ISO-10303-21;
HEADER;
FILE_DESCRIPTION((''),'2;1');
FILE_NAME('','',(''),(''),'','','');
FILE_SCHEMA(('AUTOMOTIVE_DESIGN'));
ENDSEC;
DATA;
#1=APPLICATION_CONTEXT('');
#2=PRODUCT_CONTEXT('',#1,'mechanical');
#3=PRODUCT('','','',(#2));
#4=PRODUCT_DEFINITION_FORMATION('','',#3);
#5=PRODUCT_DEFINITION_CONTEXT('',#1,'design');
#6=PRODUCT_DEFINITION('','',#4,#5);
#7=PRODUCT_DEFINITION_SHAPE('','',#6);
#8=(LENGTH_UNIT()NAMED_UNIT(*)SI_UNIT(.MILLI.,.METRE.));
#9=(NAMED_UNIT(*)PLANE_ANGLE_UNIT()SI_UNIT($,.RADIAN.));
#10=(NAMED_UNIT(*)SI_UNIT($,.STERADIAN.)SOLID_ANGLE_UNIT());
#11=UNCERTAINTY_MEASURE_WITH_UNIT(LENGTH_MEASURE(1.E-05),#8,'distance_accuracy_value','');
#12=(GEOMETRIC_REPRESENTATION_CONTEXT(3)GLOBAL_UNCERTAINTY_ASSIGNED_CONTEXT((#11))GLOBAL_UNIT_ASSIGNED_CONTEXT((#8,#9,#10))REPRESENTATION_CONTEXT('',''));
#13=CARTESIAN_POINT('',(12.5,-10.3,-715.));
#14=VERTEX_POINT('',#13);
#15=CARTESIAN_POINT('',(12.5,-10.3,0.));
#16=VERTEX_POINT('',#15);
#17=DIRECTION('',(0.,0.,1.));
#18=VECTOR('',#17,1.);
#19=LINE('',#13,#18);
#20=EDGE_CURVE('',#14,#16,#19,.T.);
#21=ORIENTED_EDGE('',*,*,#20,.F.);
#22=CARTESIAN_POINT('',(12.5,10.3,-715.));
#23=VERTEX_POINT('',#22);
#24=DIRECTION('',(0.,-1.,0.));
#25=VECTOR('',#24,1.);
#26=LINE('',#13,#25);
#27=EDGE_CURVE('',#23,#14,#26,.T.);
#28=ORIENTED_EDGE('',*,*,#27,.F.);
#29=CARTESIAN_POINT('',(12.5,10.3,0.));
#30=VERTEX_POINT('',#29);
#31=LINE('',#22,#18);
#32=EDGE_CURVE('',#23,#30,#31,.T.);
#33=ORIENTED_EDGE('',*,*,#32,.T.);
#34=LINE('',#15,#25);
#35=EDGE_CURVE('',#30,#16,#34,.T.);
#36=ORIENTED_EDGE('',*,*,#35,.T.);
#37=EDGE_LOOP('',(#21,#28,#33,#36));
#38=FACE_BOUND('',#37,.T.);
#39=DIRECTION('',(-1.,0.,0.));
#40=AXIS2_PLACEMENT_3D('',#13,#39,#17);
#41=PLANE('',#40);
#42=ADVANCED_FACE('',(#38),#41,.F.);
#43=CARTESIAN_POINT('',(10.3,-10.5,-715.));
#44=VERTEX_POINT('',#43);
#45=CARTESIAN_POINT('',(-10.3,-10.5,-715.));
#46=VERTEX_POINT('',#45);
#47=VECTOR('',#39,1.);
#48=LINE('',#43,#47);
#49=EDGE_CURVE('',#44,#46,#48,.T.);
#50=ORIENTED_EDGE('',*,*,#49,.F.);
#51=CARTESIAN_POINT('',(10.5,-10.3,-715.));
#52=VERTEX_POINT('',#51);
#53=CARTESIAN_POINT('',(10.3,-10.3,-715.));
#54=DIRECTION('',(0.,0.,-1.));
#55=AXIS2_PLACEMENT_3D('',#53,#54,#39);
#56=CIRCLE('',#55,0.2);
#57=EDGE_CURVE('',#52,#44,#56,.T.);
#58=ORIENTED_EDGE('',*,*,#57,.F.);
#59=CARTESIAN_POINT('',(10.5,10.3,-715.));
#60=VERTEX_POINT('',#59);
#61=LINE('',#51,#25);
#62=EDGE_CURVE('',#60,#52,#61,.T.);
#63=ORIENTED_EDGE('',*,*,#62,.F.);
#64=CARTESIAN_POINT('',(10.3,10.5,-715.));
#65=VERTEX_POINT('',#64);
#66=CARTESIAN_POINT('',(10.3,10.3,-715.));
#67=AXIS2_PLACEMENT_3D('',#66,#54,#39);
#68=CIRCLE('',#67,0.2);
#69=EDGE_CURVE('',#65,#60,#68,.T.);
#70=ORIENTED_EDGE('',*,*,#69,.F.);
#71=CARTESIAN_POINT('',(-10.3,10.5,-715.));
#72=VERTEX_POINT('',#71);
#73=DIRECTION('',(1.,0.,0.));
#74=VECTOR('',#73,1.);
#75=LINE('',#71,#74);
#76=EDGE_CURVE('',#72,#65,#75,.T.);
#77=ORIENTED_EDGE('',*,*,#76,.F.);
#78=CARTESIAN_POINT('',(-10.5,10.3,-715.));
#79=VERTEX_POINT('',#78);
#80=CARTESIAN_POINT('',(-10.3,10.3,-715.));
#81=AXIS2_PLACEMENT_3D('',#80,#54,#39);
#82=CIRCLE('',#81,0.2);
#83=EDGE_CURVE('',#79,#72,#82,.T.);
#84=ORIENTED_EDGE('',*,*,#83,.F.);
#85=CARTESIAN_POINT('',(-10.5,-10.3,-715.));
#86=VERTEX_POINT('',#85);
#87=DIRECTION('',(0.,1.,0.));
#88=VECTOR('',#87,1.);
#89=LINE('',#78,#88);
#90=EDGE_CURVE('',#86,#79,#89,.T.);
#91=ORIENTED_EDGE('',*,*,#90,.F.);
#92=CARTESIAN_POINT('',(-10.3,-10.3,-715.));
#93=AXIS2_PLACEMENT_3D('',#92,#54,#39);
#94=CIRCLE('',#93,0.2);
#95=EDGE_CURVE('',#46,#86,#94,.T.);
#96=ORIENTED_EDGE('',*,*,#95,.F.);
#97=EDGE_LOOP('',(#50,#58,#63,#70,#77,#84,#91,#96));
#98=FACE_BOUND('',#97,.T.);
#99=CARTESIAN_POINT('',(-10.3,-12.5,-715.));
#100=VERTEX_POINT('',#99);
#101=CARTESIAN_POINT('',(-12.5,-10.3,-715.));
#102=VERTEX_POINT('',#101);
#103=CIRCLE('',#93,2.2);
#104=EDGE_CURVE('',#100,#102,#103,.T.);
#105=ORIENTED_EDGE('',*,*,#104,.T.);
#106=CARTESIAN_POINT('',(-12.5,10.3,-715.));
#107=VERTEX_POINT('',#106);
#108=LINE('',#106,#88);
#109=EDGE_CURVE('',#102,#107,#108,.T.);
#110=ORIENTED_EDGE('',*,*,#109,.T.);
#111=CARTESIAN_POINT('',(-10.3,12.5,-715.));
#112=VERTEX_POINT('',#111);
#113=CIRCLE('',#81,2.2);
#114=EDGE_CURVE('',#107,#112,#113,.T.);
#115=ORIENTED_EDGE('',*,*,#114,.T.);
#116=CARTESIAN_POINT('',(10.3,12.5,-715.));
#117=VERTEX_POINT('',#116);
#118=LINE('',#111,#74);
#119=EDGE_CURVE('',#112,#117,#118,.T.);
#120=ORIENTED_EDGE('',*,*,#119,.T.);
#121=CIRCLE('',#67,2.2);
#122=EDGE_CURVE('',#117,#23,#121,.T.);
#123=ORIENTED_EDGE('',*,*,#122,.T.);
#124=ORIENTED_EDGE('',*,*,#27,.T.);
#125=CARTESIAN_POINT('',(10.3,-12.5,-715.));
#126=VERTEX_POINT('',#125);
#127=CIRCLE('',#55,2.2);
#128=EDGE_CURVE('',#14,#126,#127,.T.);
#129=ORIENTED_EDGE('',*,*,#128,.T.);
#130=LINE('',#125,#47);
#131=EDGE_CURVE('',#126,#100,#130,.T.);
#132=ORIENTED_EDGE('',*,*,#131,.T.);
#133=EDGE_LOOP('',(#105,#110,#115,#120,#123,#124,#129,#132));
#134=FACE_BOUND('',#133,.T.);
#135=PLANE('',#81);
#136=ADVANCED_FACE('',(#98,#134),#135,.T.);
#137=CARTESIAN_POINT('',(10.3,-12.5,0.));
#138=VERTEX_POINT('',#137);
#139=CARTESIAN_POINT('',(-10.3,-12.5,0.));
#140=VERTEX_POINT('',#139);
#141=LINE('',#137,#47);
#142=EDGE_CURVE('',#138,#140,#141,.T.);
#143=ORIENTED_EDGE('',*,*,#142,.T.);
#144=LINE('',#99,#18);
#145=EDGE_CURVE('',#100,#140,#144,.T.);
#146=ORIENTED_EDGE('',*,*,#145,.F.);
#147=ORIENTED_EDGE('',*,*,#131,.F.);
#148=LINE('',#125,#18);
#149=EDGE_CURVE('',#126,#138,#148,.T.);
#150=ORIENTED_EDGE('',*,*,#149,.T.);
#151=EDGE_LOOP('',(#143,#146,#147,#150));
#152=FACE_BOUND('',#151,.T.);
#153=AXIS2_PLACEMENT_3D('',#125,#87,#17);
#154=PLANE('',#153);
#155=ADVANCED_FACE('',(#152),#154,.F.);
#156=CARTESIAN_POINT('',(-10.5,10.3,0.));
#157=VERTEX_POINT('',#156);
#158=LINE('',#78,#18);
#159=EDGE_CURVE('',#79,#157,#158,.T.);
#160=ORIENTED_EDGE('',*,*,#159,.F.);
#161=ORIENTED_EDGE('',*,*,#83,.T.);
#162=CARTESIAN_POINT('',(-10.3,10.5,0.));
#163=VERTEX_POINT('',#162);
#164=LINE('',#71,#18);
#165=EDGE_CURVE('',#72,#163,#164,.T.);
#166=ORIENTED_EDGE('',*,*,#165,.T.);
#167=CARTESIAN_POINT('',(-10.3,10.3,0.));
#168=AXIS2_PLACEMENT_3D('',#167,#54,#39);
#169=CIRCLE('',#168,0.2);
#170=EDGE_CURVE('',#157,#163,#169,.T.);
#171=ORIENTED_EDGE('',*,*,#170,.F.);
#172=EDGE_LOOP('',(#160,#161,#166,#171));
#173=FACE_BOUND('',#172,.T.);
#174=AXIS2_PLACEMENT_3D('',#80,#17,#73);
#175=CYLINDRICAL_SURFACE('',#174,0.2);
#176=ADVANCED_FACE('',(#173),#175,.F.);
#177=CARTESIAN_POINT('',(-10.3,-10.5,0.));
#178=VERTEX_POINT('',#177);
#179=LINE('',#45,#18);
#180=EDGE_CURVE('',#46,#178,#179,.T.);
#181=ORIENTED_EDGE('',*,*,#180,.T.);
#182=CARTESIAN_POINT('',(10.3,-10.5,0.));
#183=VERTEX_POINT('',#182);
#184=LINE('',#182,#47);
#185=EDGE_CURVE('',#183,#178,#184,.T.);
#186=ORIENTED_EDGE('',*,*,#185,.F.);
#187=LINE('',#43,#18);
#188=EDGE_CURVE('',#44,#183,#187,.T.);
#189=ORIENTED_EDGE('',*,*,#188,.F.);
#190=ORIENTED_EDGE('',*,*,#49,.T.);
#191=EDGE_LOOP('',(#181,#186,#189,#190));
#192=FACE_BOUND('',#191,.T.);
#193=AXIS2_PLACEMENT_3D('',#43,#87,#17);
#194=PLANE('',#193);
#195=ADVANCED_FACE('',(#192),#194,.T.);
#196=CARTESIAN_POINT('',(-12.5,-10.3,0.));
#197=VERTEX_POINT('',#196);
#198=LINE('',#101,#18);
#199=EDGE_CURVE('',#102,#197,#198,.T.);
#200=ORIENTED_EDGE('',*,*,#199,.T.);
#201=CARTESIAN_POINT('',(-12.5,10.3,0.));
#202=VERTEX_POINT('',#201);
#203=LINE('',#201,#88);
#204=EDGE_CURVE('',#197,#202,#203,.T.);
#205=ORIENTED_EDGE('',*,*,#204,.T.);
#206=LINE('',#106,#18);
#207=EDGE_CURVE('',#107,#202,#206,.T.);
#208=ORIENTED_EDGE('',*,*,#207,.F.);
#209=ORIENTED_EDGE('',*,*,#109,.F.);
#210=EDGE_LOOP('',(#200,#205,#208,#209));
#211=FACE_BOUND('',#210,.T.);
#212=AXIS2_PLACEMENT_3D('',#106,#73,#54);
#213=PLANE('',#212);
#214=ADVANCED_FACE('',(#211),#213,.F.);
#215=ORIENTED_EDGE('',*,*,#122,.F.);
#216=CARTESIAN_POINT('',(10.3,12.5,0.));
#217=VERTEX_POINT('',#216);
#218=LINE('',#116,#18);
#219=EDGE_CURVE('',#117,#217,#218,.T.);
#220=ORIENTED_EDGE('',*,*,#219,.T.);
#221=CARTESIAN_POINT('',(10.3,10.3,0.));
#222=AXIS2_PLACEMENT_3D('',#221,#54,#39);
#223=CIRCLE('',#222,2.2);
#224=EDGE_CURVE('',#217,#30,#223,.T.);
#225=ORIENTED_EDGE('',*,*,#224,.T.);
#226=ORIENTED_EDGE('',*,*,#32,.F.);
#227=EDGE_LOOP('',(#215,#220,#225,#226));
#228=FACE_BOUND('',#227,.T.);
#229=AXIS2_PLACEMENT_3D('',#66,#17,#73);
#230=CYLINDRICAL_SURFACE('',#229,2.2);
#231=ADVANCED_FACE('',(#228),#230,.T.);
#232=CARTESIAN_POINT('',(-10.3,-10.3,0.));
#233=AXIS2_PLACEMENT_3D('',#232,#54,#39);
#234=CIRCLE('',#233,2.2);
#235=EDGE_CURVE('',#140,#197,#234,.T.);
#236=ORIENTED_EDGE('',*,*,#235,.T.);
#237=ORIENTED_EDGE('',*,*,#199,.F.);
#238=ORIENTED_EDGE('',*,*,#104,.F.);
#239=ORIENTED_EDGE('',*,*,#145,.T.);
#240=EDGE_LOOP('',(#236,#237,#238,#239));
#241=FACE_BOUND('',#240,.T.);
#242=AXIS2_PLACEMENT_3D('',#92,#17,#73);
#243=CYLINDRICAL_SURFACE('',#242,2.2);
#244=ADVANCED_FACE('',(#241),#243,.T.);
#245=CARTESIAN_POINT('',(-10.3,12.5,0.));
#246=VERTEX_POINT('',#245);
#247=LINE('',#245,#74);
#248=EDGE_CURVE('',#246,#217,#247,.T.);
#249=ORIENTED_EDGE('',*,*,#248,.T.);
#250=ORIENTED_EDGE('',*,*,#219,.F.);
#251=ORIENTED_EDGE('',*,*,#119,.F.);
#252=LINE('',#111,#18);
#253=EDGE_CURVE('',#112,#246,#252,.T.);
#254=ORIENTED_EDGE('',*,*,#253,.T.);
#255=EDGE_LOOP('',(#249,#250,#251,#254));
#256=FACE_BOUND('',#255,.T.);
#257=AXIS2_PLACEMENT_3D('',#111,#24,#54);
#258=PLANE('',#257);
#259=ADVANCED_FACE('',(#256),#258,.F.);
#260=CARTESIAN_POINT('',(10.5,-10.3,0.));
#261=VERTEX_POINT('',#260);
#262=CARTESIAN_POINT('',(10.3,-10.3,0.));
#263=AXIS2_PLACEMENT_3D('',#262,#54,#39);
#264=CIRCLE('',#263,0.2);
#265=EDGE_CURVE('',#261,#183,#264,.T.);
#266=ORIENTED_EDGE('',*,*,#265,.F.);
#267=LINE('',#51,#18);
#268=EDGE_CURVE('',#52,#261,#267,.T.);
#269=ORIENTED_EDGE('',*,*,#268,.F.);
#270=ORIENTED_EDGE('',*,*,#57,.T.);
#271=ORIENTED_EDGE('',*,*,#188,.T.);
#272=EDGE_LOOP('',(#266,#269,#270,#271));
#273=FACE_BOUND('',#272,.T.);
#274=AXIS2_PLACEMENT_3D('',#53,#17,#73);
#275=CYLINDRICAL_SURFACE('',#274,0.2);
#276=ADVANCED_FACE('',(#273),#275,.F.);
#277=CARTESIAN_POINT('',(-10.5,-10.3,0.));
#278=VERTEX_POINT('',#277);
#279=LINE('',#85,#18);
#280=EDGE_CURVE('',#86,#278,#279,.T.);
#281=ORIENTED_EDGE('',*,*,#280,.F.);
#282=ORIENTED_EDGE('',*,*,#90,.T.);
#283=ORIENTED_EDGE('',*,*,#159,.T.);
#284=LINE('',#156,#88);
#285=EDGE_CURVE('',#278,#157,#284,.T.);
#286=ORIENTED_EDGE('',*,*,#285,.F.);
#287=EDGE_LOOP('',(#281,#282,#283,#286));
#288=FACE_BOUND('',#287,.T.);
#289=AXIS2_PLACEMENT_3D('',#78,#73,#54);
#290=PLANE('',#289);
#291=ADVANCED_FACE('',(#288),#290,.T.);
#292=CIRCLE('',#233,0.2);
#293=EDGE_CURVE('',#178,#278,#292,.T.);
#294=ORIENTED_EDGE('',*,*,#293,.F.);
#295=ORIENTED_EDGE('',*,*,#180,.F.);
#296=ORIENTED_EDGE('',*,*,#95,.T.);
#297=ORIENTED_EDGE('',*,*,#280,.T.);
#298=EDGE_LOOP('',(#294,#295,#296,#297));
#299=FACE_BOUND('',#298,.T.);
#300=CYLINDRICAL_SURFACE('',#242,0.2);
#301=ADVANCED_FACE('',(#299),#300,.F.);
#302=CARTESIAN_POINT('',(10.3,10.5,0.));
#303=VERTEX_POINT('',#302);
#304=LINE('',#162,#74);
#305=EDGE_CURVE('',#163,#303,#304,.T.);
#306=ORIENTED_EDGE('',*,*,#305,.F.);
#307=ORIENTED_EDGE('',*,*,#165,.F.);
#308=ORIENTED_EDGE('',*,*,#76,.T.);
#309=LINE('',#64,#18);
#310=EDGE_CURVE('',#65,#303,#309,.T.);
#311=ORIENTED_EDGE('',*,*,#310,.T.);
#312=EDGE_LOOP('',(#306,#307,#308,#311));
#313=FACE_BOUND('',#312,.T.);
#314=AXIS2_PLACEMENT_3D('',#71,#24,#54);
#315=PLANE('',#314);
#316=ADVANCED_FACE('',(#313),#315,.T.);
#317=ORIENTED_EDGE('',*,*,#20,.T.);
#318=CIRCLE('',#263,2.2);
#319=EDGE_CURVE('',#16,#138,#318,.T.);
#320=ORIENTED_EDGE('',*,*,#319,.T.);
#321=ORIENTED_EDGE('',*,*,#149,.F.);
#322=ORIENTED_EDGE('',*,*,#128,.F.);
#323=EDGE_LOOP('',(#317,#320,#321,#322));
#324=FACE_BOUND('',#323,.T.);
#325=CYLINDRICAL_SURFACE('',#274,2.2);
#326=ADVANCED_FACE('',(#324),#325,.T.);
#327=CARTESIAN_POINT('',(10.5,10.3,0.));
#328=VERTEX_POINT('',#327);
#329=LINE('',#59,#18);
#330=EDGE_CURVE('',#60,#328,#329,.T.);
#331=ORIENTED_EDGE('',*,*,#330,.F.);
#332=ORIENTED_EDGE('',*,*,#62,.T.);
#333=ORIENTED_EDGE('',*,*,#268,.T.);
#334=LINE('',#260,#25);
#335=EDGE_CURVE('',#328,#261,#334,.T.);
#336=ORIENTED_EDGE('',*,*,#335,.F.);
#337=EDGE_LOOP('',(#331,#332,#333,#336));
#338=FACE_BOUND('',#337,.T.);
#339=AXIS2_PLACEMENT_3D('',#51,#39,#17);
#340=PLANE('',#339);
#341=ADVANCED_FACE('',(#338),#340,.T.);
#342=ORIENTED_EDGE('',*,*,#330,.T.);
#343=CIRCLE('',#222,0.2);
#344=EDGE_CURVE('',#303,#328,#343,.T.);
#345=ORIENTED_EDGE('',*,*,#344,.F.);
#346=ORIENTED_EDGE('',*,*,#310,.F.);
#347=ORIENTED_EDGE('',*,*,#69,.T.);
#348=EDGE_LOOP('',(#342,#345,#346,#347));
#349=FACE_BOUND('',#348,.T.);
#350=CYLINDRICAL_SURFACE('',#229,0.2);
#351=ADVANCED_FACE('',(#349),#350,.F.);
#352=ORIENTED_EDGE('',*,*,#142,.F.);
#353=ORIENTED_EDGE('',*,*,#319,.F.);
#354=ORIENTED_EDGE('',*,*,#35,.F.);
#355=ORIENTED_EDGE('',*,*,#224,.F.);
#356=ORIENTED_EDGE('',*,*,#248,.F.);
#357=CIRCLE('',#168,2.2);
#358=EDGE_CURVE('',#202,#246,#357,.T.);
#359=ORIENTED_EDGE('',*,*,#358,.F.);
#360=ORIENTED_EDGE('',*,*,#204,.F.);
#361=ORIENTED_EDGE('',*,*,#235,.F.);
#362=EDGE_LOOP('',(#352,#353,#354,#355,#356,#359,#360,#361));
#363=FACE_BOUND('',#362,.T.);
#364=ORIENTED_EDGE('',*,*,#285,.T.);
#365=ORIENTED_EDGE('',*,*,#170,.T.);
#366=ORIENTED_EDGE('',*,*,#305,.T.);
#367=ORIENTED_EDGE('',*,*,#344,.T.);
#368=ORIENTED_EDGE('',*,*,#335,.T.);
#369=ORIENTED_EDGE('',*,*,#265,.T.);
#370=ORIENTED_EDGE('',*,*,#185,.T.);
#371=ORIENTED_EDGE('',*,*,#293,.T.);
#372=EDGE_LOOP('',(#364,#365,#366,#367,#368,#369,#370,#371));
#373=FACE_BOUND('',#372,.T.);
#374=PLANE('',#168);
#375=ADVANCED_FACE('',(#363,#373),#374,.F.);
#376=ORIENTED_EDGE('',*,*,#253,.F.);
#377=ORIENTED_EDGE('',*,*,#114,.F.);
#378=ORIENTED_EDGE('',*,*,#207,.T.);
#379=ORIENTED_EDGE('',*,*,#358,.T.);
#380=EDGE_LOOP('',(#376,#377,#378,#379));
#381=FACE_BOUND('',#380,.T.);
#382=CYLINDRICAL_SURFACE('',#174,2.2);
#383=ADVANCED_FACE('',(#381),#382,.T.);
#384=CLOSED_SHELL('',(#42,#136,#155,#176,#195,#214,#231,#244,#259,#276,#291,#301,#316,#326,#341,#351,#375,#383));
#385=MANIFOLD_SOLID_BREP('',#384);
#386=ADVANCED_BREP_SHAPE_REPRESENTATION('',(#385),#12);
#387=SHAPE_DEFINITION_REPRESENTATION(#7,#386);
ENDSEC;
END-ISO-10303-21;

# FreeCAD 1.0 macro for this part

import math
import FreeCAD as App
import Part
import Sketcher
from FreeCAD import Vector
Q = App.Units.Quantity

doc = App.newDocument("Part")
params = doc.addObject("Spreadsheet::Sheet", "Params")
for row, (alias, value) in enumerate([
    ("sketch1_radius", "2.2 mm"),
    ("sketch1_radius2", "0.2 mm"),
    ("sketch1_width", "20.6 mm"),
    ("pad1_length", "715 mm"),
], start=1):
    params.set(f"A{row}", alias)
    params.set(f"B{row}", "=" + value)
    params.setAlias(f"B{row}", alias)

body = doc.addObject("PartDesign::Body", "Body")

sketch1 = body.newObject("Sketcher::SketchObject", "Sketch")
sketch1.AttachmentSupport = (doc.getObject("XY_Plane"), [""])
sketch1.MapMode = "FlatFace"
sketch1.addGeometry([
    Part.LineSegment(Vector(10.3, -12.5, 0), Vector(-10.3, -12.5, 0)),
    Part.ArcOfCircle(Part.Circle(Vector(-10.3, -10.3, 0), Vector(0, 0, 1), 2.2), math.radians(180), math.radians(270)),
    Part.LineSegment(Vector(-12.5, -10.3, 0), Vector(-12.5, 10.3, 0)),
    Part.ArcOfCircle(Part.Circle(Vector(-10.3, 10.3, 0), Vector(0, 0, 1), 2.2), math.radians(90), math.radians(180)),
    Part.LineSegment(Vector(-10.3, 12.5, 0), Vector(10.3, 12.5, 0)),
    Part.ArcOfCircle(Part.Circle(Vector(10.3, 10.3, 0), Vector(0, 0, 1), 2.2), math.radians(0), math.radians(90)),
    Part.LineSegment(Vector(12.5, 10.3, 0), Vector(12.5, -10.3, 0)),
    Part.ArcOfCircle(Part.Circle(Vector(10.3, -10.3, 0), Vector(0, 0, 1), 2.2), math.radians(-90), math.radians(0)),
    Part.LineSegment(Vector(-10.3, -10.5, 0), Vector(10.3, -10.5, 0)),
    Part.ArcOfCircle(Part.Circle(Vector(10.3, -10.3, 0), Vector(0, 0, 1), 0.2), math.radians(-90), math.radians(0)),
    Part.LineSegment(Vector(10.5, -10.3, 0), Vector(10.5, 10.3, 0)),
    Part.ArcOfCircle(Part.Circle(Vector(10.3, 10.3, 0), Vector(0, 0, 1), 0.2), math.radians(0), math.radians(90)),
    Part.LineSegment(Vector(10.3, 10.5, 0), Vector(-10.3, 10.5, 0)),
    Part.ArcOfCircle(Part.Circle(Vector(-10.3, 10.3, 0), Vector(0, 0, 1), 0.2), math.radians(90), math.radians(180)),
    Part.LineSegment(Vector(-10.5, 10.3, 0), Vector(-10.5, -10.3, 0)),
    Part.ArcOfCircle(Part.Circle(Vector(-10.3, -10.3, 0), Vector(0, 0, 1), 0.2), math.radians(-180), math.radians(-90)),
], False)
sketch1.addConstraint([
    Sketcher.Constraint("Tangent", 0, 2, 1, 2),
    Sketcher.Constraint("Tangent", 1, 1, 2, 1),
    Sketcher.Constraint("Tangent", 2, 2, 3, 2),
    Sketcher.Constraint("Tangent", 3, 1, 4, 1),
    Sketcher.Constraint("Tangent", 4, 2, 5, 2),
    Sketcher.Constraint("Tangent", 5, 1, 6, 1),
    Sketcher.Constraint("Tangent", 6, 2, 7, 2),
    Sketcher.Constraint("Tangent", 7, 1, 0, 1),
    Sketcher.Constraint("Tangent", 8, 2, 9, 1),
    Sketcher.Constraint("Tangent", 9, 2, 10, 1),
    Sketcher.Constraint("Tangent", 10, 2, 11, 1),
    Sketcher.Constraint("Tangent", 11, 2, 12, 1),
    Sketcher.Constraint("Tangent", 12, 2, 13, 1),
    Sketcher.Constraint("Tangent", 13, 2, 14, 1),
    Sketcher.Constraint("Tangent", 14, 2, 15, 1),
    Sketcher.Constraint("Tangent", 15, 2, 8, 1),
    Sketcher.Constraint("Horizontal", 0),
    Sketcher.Constraint("Vertical", 2),
    Sketcher.Constraint("Horizontal", 4),
    Sketcher.Constraint("Vertical", 6),
    Sketcher.Constraint("Horizontal", 8),
    Sketcher.Constraint("Vertical", 10),
    Sketcher.Constraint("Horizontal", 12),
    Sketcher.Constraint("Vertical", 14),
    Sketcher.Constraint("Coincident", 9, 3, 7, 3),
    Sketcher.Constraint("Coincident", 11, 3, 5, 3),
    Sketcher.Constraint("Coincident", 13, 3, 3, 3),
    Sketcher.Constraint("Equal", 1, 3),
    Sketcher.Constraint("Equal", 3, 5),
    Sketcher.Constraint("Equal", 5, 7),
    Sketcher.Constraint("Equal", 13, 15),
    Sketcher.Constraint("Symmetric", 1, 3, 5, 3, -1, 1),
    Sketcher.Constraint("Equal", 12, 2),
    Sketcher.Constraint("Radius", 1, Q("2.2 mm")),
    Sketcher.Constraint("Radius", 9, Q("0.2 mm")),
    Sketcher.Constraint("DistanceX", 0, 2, 0, 1, Q("20.6 mm")),
])
sketch1.setExpression("Constraints[33]", "Params.sketch1_radius")
sketch1.setExpression("Constraints[34]", "Params.sketch1_radius2")
sketch1.setExpression("Constraints[35]", "Params.sketch1_width")
pad1 = body.newObject("PartDesign::Pad", "Pad")
pad1.Profile = sketch1
pad1.setExpression("Length", "Params.pad1_length")
pad1.Reversed = True

doc.recompute()
